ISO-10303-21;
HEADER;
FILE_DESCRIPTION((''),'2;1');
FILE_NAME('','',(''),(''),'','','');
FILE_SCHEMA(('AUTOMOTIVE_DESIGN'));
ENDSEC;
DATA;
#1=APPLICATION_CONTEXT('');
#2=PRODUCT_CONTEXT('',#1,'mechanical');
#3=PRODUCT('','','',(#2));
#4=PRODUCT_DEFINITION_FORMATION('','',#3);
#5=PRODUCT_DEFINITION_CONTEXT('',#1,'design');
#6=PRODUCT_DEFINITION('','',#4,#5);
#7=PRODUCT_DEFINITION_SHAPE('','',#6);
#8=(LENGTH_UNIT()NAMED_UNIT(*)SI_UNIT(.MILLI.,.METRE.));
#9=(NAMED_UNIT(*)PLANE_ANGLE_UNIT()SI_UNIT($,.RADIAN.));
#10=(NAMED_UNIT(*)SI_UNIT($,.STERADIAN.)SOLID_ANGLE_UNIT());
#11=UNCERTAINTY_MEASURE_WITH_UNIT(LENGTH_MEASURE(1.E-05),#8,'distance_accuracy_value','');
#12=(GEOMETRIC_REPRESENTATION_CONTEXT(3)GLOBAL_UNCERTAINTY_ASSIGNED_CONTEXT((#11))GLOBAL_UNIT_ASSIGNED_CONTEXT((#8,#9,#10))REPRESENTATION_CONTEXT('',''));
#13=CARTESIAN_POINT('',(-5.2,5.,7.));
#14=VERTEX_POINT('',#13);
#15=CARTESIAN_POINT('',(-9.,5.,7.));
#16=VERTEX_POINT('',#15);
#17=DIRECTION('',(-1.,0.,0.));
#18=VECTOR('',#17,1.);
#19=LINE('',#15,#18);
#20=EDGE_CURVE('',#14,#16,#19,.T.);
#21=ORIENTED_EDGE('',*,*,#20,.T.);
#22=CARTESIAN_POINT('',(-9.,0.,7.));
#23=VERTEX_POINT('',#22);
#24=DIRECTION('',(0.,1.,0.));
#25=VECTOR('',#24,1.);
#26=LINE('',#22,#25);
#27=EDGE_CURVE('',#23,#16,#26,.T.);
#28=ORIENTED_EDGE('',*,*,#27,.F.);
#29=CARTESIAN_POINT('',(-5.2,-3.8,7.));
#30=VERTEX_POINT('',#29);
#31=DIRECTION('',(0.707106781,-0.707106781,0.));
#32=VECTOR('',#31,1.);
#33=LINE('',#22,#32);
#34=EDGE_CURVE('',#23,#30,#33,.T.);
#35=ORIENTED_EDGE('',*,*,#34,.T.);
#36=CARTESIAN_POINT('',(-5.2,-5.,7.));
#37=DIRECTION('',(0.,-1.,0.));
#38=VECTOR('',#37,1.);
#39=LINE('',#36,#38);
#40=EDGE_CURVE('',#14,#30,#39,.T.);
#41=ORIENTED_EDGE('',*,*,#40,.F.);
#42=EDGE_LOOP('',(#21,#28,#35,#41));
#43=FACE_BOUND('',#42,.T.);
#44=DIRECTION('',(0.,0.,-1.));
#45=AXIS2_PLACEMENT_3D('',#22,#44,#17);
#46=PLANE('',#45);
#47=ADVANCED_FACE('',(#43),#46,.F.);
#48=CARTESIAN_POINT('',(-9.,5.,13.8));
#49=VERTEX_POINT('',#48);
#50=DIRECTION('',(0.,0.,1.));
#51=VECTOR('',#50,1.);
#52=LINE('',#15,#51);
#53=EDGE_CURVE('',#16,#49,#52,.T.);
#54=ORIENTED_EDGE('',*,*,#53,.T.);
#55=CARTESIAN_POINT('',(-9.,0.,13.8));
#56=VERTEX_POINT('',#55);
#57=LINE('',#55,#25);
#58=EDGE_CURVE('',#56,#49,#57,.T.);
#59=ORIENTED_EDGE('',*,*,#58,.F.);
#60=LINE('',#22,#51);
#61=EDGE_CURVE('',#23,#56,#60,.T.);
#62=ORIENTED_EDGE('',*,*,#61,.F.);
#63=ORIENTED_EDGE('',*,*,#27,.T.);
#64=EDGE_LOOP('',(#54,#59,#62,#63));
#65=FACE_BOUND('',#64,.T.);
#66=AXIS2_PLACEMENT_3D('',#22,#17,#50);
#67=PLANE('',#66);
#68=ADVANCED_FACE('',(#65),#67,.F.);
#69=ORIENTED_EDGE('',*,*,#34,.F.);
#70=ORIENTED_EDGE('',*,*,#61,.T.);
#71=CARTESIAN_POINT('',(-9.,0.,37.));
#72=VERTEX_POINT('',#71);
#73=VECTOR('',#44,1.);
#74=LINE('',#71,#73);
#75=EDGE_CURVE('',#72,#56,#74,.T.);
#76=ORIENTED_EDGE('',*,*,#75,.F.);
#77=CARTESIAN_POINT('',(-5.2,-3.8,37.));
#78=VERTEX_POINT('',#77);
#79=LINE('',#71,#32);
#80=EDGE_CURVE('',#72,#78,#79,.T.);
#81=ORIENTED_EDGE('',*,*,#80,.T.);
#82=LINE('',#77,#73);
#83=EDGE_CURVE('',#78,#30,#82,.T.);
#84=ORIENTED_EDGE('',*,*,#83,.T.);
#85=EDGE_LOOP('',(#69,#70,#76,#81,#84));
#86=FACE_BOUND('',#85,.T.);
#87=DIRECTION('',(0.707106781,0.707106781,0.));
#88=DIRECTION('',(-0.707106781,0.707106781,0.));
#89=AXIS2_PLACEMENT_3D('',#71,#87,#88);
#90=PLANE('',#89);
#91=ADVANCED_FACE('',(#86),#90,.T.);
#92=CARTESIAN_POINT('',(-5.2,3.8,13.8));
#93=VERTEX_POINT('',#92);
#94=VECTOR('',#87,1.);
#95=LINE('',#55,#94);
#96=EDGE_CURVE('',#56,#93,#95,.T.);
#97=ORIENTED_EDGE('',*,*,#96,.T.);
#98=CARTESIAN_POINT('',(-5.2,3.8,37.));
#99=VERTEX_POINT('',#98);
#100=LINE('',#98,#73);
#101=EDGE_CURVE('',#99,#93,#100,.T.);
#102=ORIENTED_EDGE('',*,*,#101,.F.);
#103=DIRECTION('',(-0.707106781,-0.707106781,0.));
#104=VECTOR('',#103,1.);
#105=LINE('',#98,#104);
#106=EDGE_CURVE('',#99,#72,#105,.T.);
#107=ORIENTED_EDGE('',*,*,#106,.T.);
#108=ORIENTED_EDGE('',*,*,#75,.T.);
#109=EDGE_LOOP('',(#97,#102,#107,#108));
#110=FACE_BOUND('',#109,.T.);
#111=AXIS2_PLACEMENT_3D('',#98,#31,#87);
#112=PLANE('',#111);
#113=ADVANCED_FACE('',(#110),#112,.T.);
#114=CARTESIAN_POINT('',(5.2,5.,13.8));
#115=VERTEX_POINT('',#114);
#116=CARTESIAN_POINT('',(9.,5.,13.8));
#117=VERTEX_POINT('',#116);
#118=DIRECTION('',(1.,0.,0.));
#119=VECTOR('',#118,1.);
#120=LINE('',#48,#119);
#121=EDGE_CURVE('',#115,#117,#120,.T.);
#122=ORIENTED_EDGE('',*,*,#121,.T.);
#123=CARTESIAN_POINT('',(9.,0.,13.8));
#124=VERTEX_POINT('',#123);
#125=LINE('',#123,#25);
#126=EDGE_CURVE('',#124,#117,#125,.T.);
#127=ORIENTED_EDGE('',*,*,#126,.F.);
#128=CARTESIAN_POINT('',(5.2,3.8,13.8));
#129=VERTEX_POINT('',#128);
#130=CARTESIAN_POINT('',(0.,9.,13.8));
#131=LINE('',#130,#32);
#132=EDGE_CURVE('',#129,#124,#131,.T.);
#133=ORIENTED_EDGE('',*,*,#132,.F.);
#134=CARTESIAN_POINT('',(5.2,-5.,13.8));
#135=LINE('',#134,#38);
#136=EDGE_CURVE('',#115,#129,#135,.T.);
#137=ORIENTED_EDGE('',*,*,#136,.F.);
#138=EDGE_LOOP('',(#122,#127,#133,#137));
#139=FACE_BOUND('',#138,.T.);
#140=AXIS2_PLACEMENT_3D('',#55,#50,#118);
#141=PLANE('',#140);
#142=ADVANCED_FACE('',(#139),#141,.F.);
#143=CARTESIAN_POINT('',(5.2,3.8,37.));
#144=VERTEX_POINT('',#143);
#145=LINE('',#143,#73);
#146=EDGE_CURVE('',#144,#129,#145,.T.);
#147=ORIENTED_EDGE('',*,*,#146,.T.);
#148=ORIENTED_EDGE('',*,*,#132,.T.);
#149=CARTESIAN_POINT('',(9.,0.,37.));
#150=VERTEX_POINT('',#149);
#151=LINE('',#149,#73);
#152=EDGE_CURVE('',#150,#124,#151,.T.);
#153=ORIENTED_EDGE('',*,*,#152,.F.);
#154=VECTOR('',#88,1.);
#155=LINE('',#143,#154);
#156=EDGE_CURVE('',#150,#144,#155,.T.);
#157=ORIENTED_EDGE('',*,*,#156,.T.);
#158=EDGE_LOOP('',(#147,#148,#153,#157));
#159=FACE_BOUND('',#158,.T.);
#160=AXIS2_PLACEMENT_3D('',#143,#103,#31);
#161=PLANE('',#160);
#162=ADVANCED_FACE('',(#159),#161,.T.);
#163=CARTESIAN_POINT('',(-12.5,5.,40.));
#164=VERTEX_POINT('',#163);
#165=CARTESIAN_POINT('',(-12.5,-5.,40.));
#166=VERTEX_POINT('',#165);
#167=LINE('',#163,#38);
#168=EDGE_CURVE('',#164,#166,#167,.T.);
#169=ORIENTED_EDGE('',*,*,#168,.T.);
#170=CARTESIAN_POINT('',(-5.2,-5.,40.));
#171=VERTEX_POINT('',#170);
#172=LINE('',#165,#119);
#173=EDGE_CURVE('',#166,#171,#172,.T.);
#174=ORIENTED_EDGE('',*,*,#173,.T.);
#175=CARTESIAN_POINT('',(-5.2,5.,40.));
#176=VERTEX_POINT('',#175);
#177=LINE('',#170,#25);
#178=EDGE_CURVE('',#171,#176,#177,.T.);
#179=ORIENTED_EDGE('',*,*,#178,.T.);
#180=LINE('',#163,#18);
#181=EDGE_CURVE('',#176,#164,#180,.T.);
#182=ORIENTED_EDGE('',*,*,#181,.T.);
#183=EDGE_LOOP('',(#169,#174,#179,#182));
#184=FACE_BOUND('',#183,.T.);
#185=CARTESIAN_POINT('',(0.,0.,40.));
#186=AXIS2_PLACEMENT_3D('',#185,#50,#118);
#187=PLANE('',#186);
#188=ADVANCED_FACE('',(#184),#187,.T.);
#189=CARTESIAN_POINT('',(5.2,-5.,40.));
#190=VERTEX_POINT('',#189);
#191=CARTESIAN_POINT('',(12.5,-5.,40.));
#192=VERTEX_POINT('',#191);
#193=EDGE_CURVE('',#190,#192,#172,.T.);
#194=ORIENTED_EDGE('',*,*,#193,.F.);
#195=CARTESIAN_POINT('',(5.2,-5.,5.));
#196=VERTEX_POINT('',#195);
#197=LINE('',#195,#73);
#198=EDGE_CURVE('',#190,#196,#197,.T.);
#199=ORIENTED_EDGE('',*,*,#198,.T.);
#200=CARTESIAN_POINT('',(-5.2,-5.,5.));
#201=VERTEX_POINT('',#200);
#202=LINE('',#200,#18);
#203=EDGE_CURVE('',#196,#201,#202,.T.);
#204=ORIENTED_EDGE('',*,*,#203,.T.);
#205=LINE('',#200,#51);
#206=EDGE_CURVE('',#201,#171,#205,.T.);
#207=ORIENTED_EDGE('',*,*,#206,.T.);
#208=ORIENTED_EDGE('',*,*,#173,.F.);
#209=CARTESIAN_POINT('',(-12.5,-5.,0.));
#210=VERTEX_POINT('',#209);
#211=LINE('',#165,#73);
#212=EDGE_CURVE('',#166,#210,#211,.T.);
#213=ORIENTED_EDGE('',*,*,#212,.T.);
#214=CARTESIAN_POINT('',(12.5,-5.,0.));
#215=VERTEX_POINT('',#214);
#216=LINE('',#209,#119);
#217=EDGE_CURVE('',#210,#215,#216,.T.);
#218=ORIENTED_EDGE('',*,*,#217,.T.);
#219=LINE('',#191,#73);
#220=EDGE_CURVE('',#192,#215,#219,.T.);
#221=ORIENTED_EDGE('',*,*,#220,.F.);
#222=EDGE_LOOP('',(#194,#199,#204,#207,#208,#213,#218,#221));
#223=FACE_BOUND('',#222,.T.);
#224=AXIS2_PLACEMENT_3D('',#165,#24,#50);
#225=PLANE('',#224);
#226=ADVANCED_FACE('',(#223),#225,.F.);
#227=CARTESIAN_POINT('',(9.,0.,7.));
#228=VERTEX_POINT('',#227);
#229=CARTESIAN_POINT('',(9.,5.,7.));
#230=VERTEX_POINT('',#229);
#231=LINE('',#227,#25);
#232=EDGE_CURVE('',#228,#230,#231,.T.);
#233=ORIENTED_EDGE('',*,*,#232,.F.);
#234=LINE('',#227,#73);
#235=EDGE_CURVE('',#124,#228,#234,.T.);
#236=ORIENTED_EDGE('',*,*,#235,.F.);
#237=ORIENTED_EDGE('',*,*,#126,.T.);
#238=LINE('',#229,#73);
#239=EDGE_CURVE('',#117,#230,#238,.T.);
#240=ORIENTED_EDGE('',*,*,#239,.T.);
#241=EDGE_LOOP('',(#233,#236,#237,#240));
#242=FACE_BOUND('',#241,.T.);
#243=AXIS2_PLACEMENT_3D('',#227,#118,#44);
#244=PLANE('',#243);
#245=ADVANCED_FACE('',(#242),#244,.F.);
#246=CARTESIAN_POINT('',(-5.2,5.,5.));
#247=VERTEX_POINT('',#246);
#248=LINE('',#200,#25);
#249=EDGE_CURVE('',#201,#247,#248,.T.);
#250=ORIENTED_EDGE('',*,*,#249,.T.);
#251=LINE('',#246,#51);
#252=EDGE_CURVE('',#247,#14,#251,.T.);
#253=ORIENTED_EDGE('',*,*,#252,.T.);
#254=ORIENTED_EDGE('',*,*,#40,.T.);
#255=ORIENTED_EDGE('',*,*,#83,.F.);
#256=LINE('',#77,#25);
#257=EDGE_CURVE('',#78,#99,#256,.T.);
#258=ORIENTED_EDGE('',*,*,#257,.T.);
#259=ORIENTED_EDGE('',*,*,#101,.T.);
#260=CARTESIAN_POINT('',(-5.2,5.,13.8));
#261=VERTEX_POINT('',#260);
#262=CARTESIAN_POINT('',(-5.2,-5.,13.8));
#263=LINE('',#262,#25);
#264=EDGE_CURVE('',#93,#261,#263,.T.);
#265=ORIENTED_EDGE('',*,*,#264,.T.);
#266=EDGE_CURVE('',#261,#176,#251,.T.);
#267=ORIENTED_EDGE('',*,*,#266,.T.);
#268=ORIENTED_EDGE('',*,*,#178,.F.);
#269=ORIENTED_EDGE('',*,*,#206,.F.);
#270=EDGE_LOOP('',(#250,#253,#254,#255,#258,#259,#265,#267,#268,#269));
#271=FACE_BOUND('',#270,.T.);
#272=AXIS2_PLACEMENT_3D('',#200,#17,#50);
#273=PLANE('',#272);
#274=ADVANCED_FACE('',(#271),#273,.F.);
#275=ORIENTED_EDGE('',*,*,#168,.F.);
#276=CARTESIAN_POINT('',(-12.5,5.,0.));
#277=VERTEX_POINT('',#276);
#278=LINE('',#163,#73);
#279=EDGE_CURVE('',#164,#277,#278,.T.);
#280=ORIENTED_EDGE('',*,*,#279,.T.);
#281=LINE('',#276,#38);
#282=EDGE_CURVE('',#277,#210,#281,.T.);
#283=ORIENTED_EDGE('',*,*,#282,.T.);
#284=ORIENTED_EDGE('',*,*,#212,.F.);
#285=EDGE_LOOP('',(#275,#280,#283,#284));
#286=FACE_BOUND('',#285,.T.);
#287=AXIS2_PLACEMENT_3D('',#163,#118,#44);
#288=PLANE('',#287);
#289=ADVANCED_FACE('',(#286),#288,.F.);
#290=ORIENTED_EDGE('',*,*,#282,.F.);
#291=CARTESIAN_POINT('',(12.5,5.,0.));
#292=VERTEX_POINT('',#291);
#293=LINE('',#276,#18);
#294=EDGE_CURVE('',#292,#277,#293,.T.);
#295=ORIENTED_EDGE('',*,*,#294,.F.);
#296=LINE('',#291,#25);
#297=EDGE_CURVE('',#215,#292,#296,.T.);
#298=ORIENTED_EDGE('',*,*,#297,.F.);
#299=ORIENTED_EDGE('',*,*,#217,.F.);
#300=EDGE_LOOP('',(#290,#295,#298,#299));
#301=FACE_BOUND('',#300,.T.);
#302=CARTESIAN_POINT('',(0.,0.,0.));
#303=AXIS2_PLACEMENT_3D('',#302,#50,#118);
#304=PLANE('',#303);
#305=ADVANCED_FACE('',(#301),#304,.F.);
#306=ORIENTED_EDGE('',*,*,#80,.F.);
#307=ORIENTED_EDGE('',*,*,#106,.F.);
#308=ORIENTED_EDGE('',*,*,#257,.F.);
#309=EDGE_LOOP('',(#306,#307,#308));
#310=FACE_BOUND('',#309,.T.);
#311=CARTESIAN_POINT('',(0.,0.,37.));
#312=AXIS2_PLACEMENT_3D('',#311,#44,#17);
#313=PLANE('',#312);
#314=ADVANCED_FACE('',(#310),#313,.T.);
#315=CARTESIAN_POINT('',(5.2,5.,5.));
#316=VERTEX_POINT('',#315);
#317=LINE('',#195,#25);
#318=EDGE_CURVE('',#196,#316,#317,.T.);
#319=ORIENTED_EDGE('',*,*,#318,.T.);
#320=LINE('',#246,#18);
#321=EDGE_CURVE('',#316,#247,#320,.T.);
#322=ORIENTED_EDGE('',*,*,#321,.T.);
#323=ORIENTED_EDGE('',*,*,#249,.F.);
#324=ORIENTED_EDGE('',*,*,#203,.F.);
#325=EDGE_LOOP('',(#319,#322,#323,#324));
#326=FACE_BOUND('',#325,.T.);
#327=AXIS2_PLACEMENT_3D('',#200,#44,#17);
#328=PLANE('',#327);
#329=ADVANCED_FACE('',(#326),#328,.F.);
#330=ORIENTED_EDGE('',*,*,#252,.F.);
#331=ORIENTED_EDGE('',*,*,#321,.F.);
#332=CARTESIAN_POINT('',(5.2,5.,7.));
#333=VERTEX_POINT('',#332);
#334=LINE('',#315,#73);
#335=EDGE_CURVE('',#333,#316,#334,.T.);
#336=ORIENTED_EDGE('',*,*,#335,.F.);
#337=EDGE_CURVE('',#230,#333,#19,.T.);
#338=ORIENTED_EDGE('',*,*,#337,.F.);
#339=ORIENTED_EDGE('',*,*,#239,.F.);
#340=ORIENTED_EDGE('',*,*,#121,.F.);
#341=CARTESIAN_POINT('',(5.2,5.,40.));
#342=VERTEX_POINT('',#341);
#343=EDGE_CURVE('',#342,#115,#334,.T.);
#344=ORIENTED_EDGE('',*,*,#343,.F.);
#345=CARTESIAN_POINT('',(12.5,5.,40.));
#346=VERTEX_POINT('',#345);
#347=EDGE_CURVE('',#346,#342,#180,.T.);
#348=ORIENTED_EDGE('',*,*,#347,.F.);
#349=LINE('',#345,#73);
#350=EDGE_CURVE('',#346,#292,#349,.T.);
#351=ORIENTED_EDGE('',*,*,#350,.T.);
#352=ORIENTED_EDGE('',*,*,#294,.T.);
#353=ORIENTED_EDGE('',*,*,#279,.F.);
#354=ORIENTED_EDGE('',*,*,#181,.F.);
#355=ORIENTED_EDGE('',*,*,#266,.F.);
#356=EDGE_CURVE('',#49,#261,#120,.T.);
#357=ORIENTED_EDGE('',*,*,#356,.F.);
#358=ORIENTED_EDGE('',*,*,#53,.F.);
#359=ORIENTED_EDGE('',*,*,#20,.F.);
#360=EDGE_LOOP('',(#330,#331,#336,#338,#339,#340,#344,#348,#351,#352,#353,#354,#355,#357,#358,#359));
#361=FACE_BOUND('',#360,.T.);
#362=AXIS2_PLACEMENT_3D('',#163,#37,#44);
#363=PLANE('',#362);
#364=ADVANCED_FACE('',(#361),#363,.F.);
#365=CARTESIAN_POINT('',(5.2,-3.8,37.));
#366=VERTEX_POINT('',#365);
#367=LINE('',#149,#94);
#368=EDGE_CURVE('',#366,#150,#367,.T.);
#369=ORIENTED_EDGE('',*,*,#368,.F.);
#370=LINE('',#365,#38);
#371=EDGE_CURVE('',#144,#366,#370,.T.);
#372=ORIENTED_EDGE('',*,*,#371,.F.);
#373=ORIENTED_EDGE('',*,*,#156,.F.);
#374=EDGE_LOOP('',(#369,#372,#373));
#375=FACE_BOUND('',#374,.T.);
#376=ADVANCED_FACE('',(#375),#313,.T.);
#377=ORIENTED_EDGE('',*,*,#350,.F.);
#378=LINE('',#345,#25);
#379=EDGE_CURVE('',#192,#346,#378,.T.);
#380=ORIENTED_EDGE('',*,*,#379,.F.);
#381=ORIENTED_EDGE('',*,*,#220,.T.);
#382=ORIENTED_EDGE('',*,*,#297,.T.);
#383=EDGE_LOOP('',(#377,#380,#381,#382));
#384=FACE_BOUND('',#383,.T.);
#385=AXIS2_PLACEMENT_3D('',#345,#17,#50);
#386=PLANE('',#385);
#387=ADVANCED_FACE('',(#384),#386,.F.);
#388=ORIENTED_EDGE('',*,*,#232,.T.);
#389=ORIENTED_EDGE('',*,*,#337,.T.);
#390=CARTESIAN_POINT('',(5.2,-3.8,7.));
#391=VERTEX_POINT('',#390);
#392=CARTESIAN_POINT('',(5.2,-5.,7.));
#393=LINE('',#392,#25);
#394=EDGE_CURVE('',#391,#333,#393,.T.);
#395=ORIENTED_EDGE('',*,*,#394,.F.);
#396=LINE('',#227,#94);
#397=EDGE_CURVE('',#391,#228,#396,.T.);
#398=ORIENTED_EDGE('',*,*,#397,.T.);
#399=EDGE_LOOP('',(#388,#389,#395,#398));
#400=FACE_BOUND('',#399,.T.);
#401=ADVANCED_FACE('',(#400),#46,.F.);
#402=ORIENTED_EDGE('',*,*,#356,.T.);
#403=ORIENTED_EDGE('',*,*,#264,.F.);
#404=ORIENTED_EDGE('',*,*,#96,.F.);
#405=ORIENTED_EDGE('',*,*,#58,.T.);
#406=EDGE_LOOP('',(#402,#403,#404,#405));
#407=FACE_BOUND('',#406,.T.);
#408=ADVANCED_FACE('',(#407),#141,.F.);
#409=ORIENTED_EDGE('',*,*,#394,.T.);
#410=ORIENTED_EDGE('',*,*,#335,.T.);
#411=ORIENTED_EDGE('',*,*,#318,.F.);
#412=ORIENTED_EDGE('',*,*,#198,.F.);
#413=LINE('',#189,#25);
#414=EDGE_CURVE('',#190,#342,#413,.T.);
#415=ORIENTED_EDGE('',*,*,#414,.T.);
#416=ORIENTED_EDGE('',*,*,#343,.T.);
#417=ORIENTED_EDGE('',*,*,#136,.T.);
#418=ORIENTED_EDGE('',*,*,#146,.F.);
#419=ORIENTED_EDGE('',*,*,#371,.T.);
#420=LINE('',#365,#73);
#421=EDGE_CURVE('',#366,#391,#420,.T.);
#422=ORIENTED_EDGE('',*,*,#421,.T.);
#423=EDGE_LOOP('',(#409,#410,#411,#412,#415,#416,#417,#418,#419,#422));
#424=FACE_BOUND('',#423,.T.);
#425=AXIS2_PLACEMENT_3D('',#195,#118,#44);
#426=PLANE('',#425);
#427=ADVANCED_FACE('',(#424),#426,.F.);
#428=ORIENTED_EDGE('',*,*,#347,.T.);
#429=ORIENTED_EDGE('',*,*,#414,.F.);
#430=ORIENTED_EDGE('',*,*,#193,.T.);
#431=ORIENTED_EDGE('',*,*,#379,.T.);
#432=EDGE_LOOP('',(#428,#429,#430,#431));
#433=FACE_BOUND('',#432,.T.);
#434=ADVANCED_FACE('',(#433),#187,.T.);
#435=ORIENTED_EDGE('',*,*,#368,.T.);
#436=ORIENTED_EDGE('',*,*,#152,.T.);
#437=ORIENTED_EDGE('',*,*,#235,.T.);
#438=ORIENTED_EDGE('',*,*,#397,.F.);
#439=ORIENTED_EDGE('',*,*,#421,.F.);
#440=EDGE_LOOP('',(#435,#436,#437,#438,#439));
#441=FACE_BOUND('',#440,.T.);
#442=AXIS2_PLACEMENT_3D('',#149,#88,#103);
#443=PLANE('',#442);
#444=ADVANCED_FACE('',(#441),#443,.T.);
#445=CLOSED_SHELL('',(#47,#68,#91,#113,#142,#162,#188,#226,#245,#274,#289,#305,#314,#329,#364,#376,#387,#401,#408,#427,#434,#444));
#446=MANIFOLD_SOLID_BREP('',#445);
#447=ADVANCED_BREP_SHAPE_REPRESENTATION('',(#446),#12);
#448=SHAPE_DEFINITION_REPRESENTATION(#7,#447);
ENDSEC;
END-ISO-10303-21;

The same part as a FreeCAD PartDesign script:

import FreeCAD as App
import Part
import Sketcher
Q = App.Units.Quantity


def add_polygon(sketch, points):
    """Adds a closed chain of lines whose ends are joined by coincident constraints."""
    first, n = sketch.GeometryCount, len(points)
    for a, b in zip(points, points[1:] + points[:1]):
        sketch.addGeometry(Part.LineSegment(App.Vector(*a, 0), App.Vector(*b, 0)), False)
    for i in range(n):
        sketch.addConstraint(Sketcher.Constraint("Coincident", first + i, 2, first + (i + 1) % n, 1))

doc = App.newDocument("Part")
body = doc.addObject("PartDesign::Body", "Body")

# Sketch on XY plane
sketch1 = body.newObject("Sketcher::SketchObject", "Sketch")
sketch1.AttachmentSupport = (doc.getObject("XY_Plane"), [""])
sketch1.MapMode = "FlatFace"
add_polygon(sketch1, [(-12, 5), (-12, -5), (12, -5), (12, 5)])  # lines 0-3
sketch1.addConstraint([
    Sketcher.Constraint("Vertical", 0),
    Sketcher.Constraint("Horizontal", 1),
    Sketcher.Constraint("Vertical", 2),
    Sketcher.Constraint("Horizontal", 3),
    Sketcher.Constraint("Symmetric", 0, 2, 2, 2, -1, 1),
    Sketcher.Constraint("DistanceX", 1, 1, 1, 2, Q("25 mm")),
    Sketcher.Constraint("DistanceY", 0, 2, 0, 1, Q("10 mm")),
])
pad1 = body.newObject("PartDesign::Pad", "Pad")
pad1.Profile = sketch1
pad1.Length = 40

# Sketch on XZ plane
sketch2 = body.newObject("Sketcher::SketchObject", "Sketch001")
sketch2.AttachmentSupport = (doc.getObject("XZ_Plane"), [""])
sketch2.MapMode = "FlatFace"
sketch2.AttachmentOffset = App.Placement(App.Vector(0, 0, -5), App.Rotation())
add_polygon(sketch2, [(-5, 5), (-5, 40), (5, 40), (5, 5)])  # lines 0-3
sketch2.addConstraint([
    Sketcher.Constraint("Vertical", 0),
    Sketcher.Constraint("Horizontal", 1),
    Sketcher.Constraint("Vertical", 2),
    Sketcher.Constraint("Horizontal", 3),
    Sketcher.Constraint("DistanceY", 0, 1, 0, 2, Q("35 mm")),
    Sketcher.Constraint("DistanceX", 1, 1, 1, 2, Q("10.4 mm")),
    Sketcher.Constraint("DistanceY", -1, 1, 0, 2, Q("40 mm")),
    Sketcher.Constraint("DistanceX", 0, 2, -1, 1, Q("5.2 mm")),
])
pocket1 = body.newObject("PartDesign::Pocket", "Pocket")
pocket1.Profile = sketch2
pocket1.Type = "ThroughAll"
pocket1.Reversed = True

# Sketch on XZ plane
sketch3 = body.newObject("Sketcher::SketchObject", "Sketch002")
sketch3.AttachmentSupport = (doc.getObject("XZ_Plane"), [""])
sketch3.MapMode = "FlatFace"
sketch3.AttachmentOffset = App.Placement(App.Vector(0, 0, -5), App.Rotation())
add_polygon(sketch3, [(-9, 7), (-9, 14), (9, 14), (9, 7)])  # lines 0-3
sketch3.addConstraint([
    Sketcher.Constraint("Vertical", 0),
    Sketcher.Constraint("Horizontal", 1),
    Sketcher.Constraint("Vertical", 2),
    Sketcher.Constraint("Horizontal", 3),
    Sketcher.Constraint("DistanceX", 1, 1, 1, 2, Q("18 mm")),
    Sketcher.Constraint("DistanceY", 0, 1, 0, 2, Q("6.8 mm")),
    Sketcher.Constraint("DistanceX", 0, 2, -1, 1, Q("9 mm")),
    Sketcher.Constraint("DistanceY", -1, 1, 2, 2, Q("7 mm")),
])
pocket2 = body.newObject("PartDesign::Pocket", "Pocket001")
pocket2.Profile = sketch3
pocket2.Length = 5
pocket2.Reversed = True

# Sketch on XY plane
sketch4 = body.newObject("Sketcher::SketchObject", "Sketch003")
sketch4.AttachmentSupport = (doc.getObject("XY_Plane"), [""])
sketch4.MapMode = "FlatFace"
sketch4.AttachmentOffset = App.Placement(App.Vector(0, 0, 7), App.Rotation())
add_polygon(sketch4, [(9, 0), (5, 4), (5, -4)])  # lines 0-2
add_polygon(sketch4, [(-5, -4), (-5, 4), (-9, 0)])  # lines 3-5
sketch4.addConstraint([
    Sketcher.Constraint("Vertical", 1),
    Sketcher.Constraint("Vertical", 3),
    Sketcher.Constraint("Symmetric", 1, 2, 3, 2, -1, 1),
    Sketcher.Constraint("Symmetric", 2, 2, 4, 2, -1, 1),
    Sketcher.Constraint("PointOnObject", 2, 2, -1),
    Sketcher.Constraint("Perpendicular", 0, 2),
    Sketcher.Constraint("Perpendicular", 4, 5),
    Sketcher.Constraint("Horizontal", 0, 2, 3, 2),
    Sketcher.Constraint("DistanceY", 1, 2, 1, 1, Q("7.6 mm")),
    Sketcher.Constraint("DistanceX", -1, 1, 2, 2, Q("9 mm")),
])
pocket3 = body.newObject("PartDesign::Pocket", "Pocket002")
pocket3.Profile = sketch4
pocket3.Length = 30
pocket3.Reversed = True

doc.recompute()
